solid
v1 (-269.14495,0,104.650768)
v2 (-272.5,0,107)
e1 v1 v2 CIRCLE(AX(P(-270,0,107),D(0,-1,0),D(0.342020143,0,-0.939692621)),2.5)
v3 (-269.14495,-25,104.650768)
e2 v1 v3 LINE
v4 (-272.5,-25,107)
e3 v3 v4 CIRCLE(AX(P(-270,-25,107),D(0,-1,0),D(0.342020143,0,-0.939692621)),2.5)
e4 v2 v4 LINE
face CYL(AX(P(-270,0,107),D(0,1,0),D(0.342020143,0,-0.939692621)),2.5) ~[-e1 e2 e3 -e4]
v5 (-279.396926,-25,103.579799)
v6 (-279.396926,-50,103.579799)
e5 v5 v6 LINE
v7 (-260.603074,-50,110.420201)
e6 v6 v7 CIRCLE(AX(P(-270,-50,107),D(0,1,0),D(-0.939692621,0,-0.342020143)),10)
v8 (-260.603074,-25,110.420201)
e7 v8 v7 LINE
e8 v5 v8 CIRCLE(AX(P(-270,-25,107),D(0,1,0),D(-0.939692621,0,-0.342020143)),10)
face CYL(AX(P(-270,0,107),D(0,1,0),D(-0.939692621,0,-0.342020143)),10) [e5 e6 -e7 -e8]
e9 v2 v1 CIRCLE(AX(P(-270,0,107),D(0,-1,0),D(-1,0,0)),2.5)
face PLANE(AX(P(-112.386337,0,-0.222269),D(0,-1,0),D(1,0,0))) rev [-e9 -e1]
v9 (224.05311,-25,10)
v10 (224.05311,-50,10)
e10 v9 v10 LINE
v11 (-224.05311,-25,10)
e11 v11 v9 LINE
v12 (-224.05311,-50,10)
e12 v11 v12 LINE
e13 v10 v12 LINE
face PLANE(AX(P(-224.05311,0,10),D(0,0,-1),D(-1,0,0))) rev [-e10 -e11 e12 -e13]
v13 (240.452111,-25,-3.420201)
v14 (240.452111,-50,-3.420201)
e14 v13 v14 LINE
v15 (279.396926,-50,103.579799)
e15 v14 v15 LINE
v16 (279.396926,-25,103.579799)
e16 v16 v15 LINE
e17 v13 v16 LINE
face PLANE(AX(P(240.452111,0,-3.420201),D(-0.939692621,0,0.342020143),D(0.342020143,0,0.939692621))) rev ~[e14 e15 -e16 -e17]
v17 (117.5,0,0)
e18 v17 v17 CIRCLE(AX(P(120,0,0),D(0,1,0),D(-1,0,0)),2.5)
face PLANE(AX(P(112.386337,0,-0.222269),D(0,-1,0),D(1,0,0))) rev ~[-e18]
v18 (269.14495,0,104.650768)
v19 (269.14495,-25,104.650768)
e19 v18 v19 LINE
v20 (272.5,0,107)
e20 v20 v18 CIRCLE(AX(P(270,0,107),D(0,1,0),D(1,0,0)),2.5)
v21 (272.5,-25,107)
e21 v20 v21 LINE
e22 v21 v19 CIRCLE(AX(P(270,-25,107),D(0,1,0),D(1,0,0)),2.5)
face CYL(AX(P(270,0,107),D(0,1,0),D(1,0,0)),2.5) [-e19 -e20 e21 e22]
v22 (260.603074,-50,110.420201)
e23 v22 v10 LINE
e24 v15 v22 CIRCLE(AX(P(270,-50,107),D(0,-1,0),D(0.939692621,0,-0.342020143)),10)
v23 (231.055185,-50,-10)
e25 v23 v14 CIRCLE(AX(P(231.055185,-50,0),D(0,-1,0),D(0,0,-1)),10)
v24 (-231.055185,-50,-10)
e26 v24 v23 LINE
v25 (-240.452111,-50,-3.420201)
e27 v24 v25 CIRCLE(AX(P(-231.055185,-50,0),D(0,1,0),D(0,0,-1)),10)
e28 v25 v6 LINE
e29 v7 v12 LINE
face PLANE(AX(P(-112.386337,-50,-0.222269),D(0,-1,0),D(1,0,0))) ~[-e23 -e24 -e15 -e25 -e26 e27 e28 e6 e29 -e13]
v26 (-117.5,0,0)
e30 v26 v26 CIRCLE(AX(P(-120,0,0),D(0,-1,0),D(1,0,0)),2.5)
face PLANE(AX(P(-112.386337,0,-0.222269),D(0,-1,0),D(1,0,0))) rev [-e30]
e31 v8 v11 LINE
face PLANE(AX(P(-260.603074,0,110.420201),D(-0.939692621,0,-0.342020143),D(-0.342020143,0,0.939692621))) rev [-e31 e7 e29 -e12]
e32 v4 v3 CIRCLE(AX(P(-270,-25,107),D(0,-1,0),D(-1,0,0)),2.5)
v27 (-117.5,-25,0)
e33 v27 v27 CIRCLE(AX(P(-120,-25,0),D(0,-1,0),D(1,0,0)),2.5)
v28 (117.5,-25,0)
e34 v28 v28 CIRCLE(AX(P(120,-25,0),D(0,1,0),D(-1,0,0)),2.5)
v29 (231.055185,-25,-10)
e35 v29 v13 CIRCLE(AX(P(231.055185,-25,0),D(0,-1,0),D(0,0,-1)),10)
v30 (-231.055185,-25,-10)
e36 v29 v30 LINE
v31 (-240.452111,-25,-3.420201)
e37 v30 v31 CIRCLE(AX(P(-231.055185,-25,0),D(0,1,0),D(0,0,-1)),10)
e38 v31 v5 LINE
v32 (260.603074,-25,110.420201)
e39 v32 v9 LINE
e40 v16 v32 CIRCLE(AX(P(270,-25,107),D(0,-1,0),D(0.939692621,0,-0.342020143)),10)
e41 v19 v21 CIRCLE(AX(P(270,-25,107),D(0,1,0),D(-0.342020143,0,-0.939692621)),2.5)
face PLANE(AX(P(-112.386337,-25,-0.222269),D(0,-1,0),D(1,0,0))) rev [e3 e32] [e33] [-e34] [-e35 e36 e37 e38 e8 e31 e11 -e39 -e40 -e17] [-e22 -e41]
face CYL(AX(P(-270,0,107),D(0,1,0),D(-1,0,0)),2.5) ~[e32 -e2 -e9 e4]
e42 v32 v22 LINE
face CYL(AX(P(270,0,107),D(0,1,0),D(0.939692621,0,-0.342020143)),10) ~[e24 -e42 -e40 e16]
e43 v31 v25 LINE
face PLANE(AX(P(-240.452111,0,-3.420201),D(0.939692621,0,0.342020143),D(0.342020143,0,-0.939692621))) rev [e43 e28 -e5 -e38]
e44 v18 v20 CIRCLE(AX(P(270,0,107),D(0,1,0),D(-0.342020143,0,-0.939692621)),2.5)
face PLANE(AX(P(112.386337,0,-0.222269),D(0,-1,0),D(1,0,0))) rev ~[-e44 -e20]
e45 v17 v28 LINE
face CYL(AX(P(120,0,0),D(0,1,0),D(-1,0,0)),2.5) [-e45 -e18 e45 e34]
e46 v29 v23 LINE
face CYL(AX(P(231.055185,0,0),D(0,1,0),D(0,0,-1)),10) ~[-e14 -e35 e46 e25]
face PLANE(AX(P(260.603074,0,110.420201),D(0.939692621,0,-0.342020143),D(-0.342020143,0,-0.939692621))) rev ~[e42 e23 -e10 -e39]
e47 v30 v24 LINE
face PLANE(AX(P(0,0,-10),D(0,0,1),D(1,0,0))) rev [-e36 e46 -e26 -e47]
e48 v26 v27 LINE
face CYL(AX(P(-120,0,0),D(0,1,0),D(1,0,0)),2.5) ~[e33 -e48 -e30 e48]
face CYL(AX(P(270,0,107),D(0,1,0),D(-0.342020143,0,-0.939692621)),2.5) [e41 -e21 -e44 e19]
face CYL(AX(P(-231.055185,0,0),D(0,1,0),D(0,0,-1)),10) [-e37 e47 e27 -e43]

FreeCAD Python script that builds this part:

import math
import FreeCAD as App
import Part
import Sketcher

V = App.Vector
Q = App.Units.Quantity

doc = App.newDocument("Part")
body = doc.addObject("PartDesign::Body", "Body")

sketch1 = doc.addObject("Sketcher::SketchObject", "Sketch")
body.addObject(sketch1)
sketch1.AttachmentSupport = (doc.XZ_Plane, [""])
sketch1.MapMode = "FlatFace"
sketch1.addGeometry([
    Part.ArcOfCircle(Part.Circle(V(270, 107, 0), V(0, 0, 1), 10), math.radians(-20), math.radians(160)),
    Part.LineSegment(V(261, 110, 0), V(224, 10, 0)),
    Part.LineSegment(V(224, 10, 0), V(0, 10, 0)),
    Part.ArcOfCircle(Part.Circle(V(0, 0, 0), V(0, 0, 1), 10), math.radians(90), math.radians(270)),
    Part.LineSegment(V(0, -10, 0), V(231, -10, 0)),
    Part.ArcOfCircle(Part.Circle(V(231, 0, 0), V(0, 0, 1), 10), math.radians(-90), math.radians(-20)),
    Part.LineSegment(V(240, -3, 0), V(279, 104, 0)),
], False)
sketch1.addConstraint([
    Sketcher.Constraint("Tangent", 0, 2, 1, 1),
    Sketcher.Constraint("Coincident", 1, 2, 2, 1),
    Sketcher.Constraint("Tangent", 2, 2, 3, 1),
    Sketcher.Constraint("Tangent", 3, 2, 4, 1),
    Sketcher.Constraint("Tangent", 4, 2, 5, 1),
    Sketcher.Constraint("Tangent", 5, 2, 6, 1),
    Sketcher.Constraint("Tangent", 6, 2, 0, 1),
    Sketcher.Constraint("Horizontal", 2),
    Sketcher.Constraint("Horizontal", 4),
    Sketcher.Constraint("Coincident", 3, 3, -1, 1),
    Sketcher.Constraint("Equal", 0, 3),
    Sketcher.Constraint("Equal", 3, 5),
    Sketcher.Constraint("Parallel", 1, 6),
    Sketcher.Constraint("Radius", 0, 10.0),
    Sketcher.Constraint("Angle", 1, Q("-110 deg")),
    Sketcher.Constraint("DistanceX", -1, 1, 0, 3, 270.0),
    Sketcher.Constraint("DistanceY", -1, 1, 0, 3, 107.0),
])
pad1 = doc.addObject("PartDesign::Pad", "Pad")
body.addObject(pad1)
pad1.Profile = sketch1
pad1.Length = 50

sketch2 = doc.addObject("Sketcher::SketchObject", "Sketch001")
body.addObject(sketch2)
sketch2.AttachmentSupport = (doc.XZ_Plane, [""])
sketch2.MapMode = "FlatFace"
sketch2.addGeometry([
    Part.LineSegment(V(224.1, 10, 0), V(0, 10, 0)),
    Part.ArcOfCircle(Part.Circle(V(0, 0, 0), V(0, 0, 1), 10), math.radians(90), math.radians(270)),
    Part.LineSegment(V(0, -10, 0), V(231.1, -10, 0)),
    Part.ArcOfCircle(Part.Circle(V(231.1, 0, 0), V(0, 0, 1), 10), math.radians(-90), math.radians(-20)),
    Part.LineSegment(V(240.5, -3.4, 0), V(279.4, 103.6, 0)),
    Part.ArcOfCircle(Part.Circle(V(270, 107, 0), V(0, 0, 1), 10), math.radians(-20), math.radians(160)),
    Part.LineSegment(V(260.6, 110.4, 0), V(224.1, 10, 0)),
    Part.Circle(V(120, 0, 0), V(0, 0, 1), 2.5),
    Part.ArcOfCircle(Part.Circle(V(270, 107, 0), V(0, 0, 1), 2.5), math.radians(0), math.radians(250)),
    Part.ArcOfCircle(Part.Circle(V(270, 107, 0), V(0, 0, 1), 2.5), math.radians(-110), math.radians(0)),
], False)
sketch2.addConstraint([
    Sketcher.Constraint("Tangent", 0, 2, 1, 1),
    Sketcher.Constraint("Tangent", 1, 2, 2, 1),
    Sketcher.Constraint("Tangent", 2, 2, 3, 1),
    Sketcher.Constraint("Tangent", 3, 2, 4, 1),
    Sketcher.Constraint("Tangent", 4, 2, 5, 1),
    Sketcher.Constraint("Tangent", 5, 2, 6, 1),
    Sketcher.Constraint("Coincident", 6, 2, 0, 1),
    Sketcher.Constraint("Tangent", 8, 1, 9, 2),
    Sketcher.Constraint("Coincident", 9, 1, 8, 2),
    Sketcher.Constraint("Horizontal", 0),
    Sketcher.Constraint("Horizontal", 2),
    Sketcher.Constraint("Coincident", 1, 3, -1, 1),
    Sketcher.Constraint("Coincident", 8, 3, 5, 3),
    Sketcher.Constraint("Equal", 1, 3),
    Sketcher.Constraint("Equal", 3, 5),
    Sketcher.Constraint("Equal", 7, 8),
    Sketcher.Constraint("PointOnObject", 7, 3, -1),
    Sketcher.Constraint("Parallel", 4, 6),
    Sketcher.Constraint("Horizontal", 9, 3, 8, 1),
    Sketcher.Constraint("Diameter", 7, 5.0),
    Sketcher.Constraint("Radius", 1, 10.0),
    Sketcher.Constraint("Angle", 4, Q("70 deg")),
    Sketcher.Constraint("DistanceX", -1, 1, 5, 3, 270.0),
    Sketcher.Constraint("DistanceY", -1, 1, 5, 3, 107.0),
    Sketcher.Constraint("DistanceX", -1, 1, 7, 3, 120.0),
    Sketcher.Constraint("DistanceX", -1, 1, 9, 1, 269.14495),
])
pocket1 = doc.addObject("PartDesign::Pocket", "Pocket")
body.addObject(pocket1)
pocket1.Profile = sketch2
pocket1.Length = 25
pocket1.Reversed = True
body2 = doc.addObject("PartDesign::Body", "Body001")
doc.recompute()

body2.BaseFeature = body
doc.recompute()

mirroring = doc.addObject("Part::Mirroring", "Mirroring")
mirroring.Source = body
mirroring.Base = V(0, 0, 0)
mirroring.Normal = V(1, 0, 0)
body3 = doc.addObject("PartDesign::Body", "Body002")
body3.BaseFeature = mirroring
boolean = doc.addObject("PartDesign::Boolean", "Boolean")
body2.addObject(boolean)
boolean.Type = "Fuse"
boolean.addObjects([body3])
doc.recompute()
body4 = doc.addObject("PartDesign::Body", "Body003")
doc.recompute()

body4.BaseFeature = body2
doc.recompute()
body2.Visibility = False
mirroring.Visibility = False

doc.recompute()
